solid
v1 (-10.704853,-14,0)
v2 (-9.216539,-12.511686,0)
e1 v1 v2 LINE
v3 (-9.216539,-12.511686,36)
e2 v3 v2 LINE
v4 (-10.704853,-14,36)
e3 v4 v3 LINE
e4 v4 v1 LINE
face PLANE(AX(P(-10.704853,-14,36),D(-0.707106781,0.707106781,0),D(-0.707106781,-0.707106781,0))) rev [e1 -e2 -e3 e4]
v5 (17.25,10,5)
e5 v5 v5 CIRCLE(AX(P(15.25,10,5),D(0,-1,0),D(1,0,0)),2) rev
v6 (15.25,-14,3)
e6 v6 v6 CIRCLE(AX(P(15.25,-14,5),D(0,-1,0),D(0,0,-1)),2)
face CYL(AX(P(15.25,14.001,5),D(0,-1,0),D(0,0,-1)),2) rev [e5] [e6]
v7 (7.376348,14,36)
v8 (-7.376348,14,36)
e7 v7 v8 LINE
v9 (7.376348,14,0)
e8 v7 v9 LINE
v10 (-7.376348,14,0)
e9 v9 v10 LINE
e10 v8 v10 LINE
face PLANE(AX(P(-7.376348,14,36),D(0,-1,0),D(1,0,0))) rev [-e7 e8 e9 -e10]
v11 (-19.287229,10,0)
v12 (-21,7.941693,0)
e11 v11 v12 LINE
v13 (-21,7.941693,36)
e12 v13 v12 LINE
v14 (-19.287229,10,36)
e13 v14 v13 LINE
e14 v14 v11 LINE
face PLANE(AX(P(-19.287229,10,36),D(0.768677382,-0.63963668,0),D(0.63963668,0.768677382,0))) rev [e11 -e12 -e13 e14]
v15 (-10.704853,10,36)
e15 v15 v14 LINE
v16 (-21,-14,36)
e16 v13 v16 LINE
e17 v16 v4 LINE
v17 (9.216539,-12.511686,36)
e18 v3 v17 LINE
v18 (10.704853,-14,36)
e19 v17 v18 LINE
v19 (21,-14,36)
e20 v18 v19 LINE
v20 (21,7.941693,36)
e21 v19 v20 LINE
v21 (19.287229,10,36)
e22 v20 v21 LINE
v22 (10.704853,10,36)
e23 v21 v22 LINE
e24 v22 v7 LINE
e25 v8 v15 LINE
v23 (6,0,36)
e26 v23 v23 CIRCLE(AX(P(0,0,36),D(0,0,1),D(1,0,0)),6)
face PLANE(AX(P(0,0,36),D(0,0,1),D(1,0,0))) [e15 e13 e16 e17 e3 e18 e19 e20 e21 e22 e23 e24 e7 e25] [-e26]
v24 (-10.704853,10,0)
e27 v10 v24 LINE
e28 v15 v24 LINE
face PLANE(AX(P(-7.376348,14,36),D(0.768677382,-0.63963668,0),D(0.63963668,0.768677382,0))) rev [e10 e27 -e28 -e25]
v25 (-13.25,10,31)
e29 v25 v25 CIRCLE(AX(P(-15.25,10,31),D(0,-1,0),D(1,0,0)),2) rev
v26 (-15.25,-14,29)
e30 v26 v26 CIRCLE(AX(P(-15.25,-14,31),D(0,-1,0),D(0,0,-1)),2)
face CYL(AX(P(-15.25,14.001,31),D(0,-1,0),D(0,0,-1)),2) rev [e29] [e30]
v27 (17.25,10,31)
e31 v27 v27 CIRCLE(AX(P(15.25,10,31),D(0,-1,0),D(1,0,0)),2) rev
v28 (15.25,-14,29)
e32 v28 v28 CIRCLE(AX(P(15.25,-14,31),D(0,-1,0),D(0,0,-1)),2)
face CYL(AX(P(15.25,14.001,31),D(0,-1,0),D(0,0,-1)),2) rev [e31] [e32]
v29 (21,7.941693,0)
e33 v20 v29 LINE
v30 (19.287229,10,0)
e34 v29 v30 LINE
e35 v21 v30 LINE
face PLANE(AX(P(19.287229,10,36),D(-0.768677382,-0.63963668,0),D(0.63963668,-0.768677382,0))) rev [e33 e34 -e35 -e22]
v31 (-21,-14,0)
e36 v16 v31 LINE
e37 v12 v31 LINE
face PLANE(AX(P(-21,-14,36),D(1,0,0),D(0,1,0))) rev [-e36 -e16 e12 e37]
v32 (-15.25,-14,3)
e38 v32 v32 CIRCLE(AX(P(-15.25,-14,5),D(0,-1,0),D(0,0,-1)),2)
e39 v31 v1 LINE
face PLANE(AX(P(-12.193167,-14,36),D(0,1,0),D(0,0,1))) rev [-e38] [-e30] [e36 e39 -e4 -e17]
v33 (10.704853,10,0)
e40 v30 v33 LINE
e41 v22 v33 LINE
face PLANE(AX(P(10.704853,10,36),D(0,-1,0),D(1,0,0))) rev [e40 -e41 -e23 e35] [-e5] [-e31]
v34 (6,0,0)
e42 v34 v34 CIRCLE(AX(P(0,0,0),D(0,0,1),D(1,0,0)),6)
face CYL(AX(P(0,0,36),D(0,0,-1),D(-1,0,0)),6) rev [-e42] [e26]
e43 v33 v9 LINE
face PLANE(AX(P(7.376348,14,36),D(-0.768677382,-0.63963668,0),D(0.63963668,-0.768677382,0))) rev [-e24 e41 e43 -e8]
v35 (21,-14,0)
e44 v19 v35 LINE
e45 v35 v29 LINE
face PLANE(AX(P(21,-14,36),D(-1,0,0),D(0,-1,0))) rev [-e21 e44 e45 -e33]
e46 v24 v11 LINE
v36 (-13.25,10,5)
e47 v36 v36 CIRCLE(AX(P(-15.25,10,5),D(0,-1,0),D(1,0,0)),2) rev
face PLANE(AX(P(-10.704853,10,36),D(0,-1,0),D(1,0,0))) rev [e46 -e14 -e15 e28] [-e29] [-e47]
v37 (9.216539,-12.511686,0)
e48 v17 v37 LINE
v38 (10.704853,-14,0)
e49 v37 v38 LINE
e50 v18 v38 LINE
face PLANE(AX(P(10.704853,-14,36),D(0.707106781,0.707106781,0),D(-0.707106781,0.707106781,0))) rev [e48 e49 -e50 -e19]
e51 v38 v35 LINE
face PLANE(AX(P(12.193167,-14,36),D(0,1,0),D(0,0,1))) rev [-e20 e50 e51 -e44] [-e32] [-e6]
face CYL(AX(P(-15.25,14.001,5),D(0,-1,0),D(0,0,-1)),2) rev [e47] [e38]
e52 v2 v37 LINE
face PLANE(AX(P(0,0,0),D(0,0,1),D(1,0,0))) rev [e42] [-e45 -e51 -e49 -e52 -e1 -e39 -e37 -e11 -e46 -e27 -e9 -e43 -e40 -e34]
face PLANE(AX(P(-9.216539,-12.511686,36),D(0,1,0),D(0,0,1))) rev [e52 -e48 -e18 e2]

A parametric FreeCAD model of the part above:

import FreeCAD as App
import Part
import Sketcher
Q = App.Units.Quantity

doc = App.newDocument("Part")
body = doc.addObject("PartDesign::Body", "Body")

sketch1 = body.newObject("Sketcher::SketchObject", "Sketch")
sketch1.AttachmentSupport = (doc.getObject("XY_Plane"), [""])
sketch1.MapMode = "FlatFace"
sketch1.addGeometry([
    Part.LineSegment(App.Vector(-7.376348, 14, 0), App.Vector(-10.704853, 10, 0)),
    Part.LineSegment(App.Vector(-10.704853, 10, 0), App.Vector(-19.287229, 10, 0)),
    Part.LineSegment(App.Vector(-19.287229, 10, 0), App.Vector(-21, 7.941693, 0)),
    Part.LineSegment(App.Vector(-21, 7.941693, 0), App.Vector(-21, -14, 0)),
    Part.LineSegment(App.Vector(-21, -14, 0), App.Vector(-10.704853, -14, 0)),
    Part.LineSegment(App.Vector(-10.704853, -14, 0), App.Vector(-9.216539, -12.511686, 0)),
    Part.LineSegment(App.Vector(-9.216539, -12.511686, 0), App.Vector(9.216539, -12.511686, 0)),
    Part.LineSegment(App.Vector(9.216539, -12.511686, 0), App.Vector(10.704853, -14, 0)),
    Part.LineSegment(App.Vector(10.704853, -14, 0), App.Vector(21, -14, 0)),
    Part.LineSegment(App.Vector(21, -14, 0), App.Vector(21, 7.941693, 0)),
    Part.LineSegment(App.Vector(21, 7.941693, 0), App.Vector(19.287229, 10, 0)),
    Part.LineSegment(App.Vector(19.287229, 10, 0), App.Vector(10.704853, 10, 0)),
    Part.LineSegment(App.Vector(10.704853, 10, 0), App.Vector(7.376348, 14, 0)),
    Part.LineSegment(App.Vector(7.376348, 14, 0), App.Vector(-7.376348, 14, 0)),
    Part.Circle(App.Vector(0, 0, 0), App.Vector(0, 0, 1), 6),
], False)
sketch1.addConstraint([
    Sketcher.Constraint("Coincident", 0, 2, 1, 1),
    Sketcher.Constraint("Coincident", 1, 2, 2, 1),
    Sketcher.Constraint("Coincident", 2, 2, 3, 1),
    Sketcher.Constraint("Coincident", 3, 2, 4, 1),
    Sketcher.Constraint("Coincident", 4, 2, 5, 1),
    Sketcher.Constraint("Coincident", 5, 2, 6, 1),
    Sketcher.Constraint("Coincident", 6, 2, 7, 1),
    Sketcher.Constraint("Coincident", 7, 2, 8, 1),
    Sketcher.Constraint("Coincident", 8, 2, 9, 1),
    Sketcher.Constraint("Coincident", 9, 2, 10, 1),
    Sketcher.Constraint("Coincident", 10, 2, 11, 1),
    Sketcher.Constraint("Coincident", 11, 2, 12, 1),
    Sketcher.Constraint("Coincident", 12, 2, 13, 1),
    Sketcher.Constraint("Coincident", 13, 2, 0, 1),
    Sketcher.Constraint("Horizontal", 1),
    Sketcher.Constraint("Vertical", 3),
    Sketcher.Constraint("Horizontal", 4),
    Sketcher.Constraint("Horizontal", 6),
    Sketcher.Constraint("Horizontal", 8),
    Sketcher.Constraint("Vertical", 9),
    Sketcher.Constraint("Horizontal", 11),
    Sketcher.Constraint("Horizontal", 13),
    Sketcher.Constraint("Coincident", 14, 3, -1, 1),
    Sketcher.Constraint("Symmetric", 4, 2, 7, 2, -2),
    Sketcher.Constraint("Symmetric", 2, 2, 9, 2, -2),
    Sketcher.Constraint("Symmetric", 1, 2, 10, 2, -2),
    Sketcher.Constraint("Parallel", 0, 2),
    Sketcher.Constraint("Perpendicular", 5, 7),
    Sketcher.Constraint("Parallel", 10, 12),
    Sketcher.Constraint("Vertical", 0, 2, 4, 2),
    Sketcher.Constraint("Vertical", 7, 2, 11, 2),
    Sketcher.Constraint("Equal", 5, 7),
    Sketcher.Constraint("Diameter", 14, Q("12 mm")),
    Sketcher.Constraint("DistanceY", -1, 1, 0, 2, Q("10 mm")),
    Sketcher.Constraint("DistanceX", 2, 2, -1, 1, Q("21 mm")),
    Sketcher.Constraint("DistanceY", 3, 2, -1, 1, Q("14 mm")),
    Sketcher.Constraint("DistanceY", -1, 1, 12, 2, Q("14 mm")),
    Sketcher.Constraint("DistanceX", 0, 2, 12, 2, Q("18.081201 mm")),
    Sketcher.Constraint("DistanceX", 1, 2, 1, 1, Q("8.582376 mm")),
    Sketcher.Constraint("DistanceX", 4, 1, 4, 2, Q("10.295147 mm")),
    Sketcher.Constraint("DistanceX", 6, 1, 6, 2, Q("18.433077 mm")),
])
pad1 = body.newObject("PartDesign::Pad", "Pad")
pad1.Profile = sketch1
pad1.Length = 36

sketch2 = body.newObject("Sketcher::SketchObject", "Sketch001")
sketch2.AttachmentSupport = (doc.getObject("XZ_Plane"), [""])
sketch2.MapMode = "FlatFace"
sketch2.AttachmentOffset = App.Placement(App.Vector(0, 0, 14), App.Rotation())
sketch2.addGeometry(Part.Circle(App.Vector(-15.25, 31, 0), App.Vector(0, 0, 1), 2), False)
sketch2.addConstraint([
    Sketcher.Constraint("Diameter", 0, Q("4 mm")),
    Sketcher.Constraint("DistanceY", -1, 1, 0, 3, Q("31 mm")),
    Sketcher.Constraint("DistanceX", 0, 3, -1, 1, Q("15.25 mm")),
])
pocket1 = body.newObject("PartDesign::Pocket", "Pocket")
pocket1.Profile = sketch2
pocket1.Type = "UpToFirst"

sketch3 = body.newObject("Sketcher::SketchObject", "Sketch002")
sketch3.AttachmentSupport = (doc.getObject("XZ_Plane"), [""])
sketch3.MapMode = "FlatFace"
sketch3.AttachmentOffset = App.Placement(App.Vector(0, 0, 14), App.Rotation())
sketch3.addGeometry(Part.Circle(App.Vector(15.25, 31, 0), App.Vector(0, 0, 1), 2), False)
sketch3.addConstraint([
    Sketcher.Constraint("Diameter", 0, Q("4 mm")),
    Sketcher.Constraint("DistanceY", -1, 1, 0, 3, Q("31 mm")),
    Sketcher.Constraint("DistanceX", -1, 1, 0, 3, Q("15.25 mm")),
])
pocket2 = body.newObject("PartDesign::Pocket", "Pocket001")
pocket2.Profile = sketch3
pocket2.Type = "UpToFirst"

sketch4 = body.newObject("Sketcher::SketchObject", "Sketch003")
sketch4.AttachmentSupport = (doc.getObject("XZ_Plane"), [""])
sketch4.MapMode = "FlatFace"
sketch4.AttachmentOffset = App.Placement(App.Vector(0, 0, 14), App.Rotation())
sketch4.addGeometry(Part.Circle(App.Vector(15.25, 5, 0), App.Vector(0, 0, 1), 2), False)
sketch4.addConstraint([
    Sketcher.Constraint("Diameter", 0, Q("4 mm")),
    Sketcher.Constraint("DistanceY", -1, 1, 0, 3, Q("5 mm")),
    Sketcher.Constraint("DistanceX", -1, 1, 0, 3, Q("15.25 mm")),
])
pocket3 = body.newObject("PartDesign::Pocket", "Pocket002")
pocket3.Profile = sketch4
pocket3.Type = "UpToFirst"

sketch5 = body.newObject("Sketcher::SketchObject", "Sketch004")
sketch5.AttachmentSupport = (doc.getObject("XZ_Plane"), [""])
sketch5.MapMode = "FlatFace"
sketch5.AttachmentOffset = App.Placement(App.Vector(0, 0, 14), App.Rotation())
sketch5.addGeometry(Part.Circle(App.Vector(-15.25, 5, 0), App.Vector(0, 0, 1), 2), False)
sketch5.addConstraint([
    Sketcher.Constraint("Diameter", 0, Q("4 mm")),
    Sketcher.Constraint("DistanceY", -1, 1, 0, 3, Q("5 mm")),
    Sketcher.Constraint("DistanceX", 0, 3, -1, 1, Q("15.25 mm")),
])
pocket4 = body.newObject("PartDesign::Pocket", "Pocket003")
pocket4.Profile = sketch5
pocket4.Type = "UpToFirst"

doc.recompute()
